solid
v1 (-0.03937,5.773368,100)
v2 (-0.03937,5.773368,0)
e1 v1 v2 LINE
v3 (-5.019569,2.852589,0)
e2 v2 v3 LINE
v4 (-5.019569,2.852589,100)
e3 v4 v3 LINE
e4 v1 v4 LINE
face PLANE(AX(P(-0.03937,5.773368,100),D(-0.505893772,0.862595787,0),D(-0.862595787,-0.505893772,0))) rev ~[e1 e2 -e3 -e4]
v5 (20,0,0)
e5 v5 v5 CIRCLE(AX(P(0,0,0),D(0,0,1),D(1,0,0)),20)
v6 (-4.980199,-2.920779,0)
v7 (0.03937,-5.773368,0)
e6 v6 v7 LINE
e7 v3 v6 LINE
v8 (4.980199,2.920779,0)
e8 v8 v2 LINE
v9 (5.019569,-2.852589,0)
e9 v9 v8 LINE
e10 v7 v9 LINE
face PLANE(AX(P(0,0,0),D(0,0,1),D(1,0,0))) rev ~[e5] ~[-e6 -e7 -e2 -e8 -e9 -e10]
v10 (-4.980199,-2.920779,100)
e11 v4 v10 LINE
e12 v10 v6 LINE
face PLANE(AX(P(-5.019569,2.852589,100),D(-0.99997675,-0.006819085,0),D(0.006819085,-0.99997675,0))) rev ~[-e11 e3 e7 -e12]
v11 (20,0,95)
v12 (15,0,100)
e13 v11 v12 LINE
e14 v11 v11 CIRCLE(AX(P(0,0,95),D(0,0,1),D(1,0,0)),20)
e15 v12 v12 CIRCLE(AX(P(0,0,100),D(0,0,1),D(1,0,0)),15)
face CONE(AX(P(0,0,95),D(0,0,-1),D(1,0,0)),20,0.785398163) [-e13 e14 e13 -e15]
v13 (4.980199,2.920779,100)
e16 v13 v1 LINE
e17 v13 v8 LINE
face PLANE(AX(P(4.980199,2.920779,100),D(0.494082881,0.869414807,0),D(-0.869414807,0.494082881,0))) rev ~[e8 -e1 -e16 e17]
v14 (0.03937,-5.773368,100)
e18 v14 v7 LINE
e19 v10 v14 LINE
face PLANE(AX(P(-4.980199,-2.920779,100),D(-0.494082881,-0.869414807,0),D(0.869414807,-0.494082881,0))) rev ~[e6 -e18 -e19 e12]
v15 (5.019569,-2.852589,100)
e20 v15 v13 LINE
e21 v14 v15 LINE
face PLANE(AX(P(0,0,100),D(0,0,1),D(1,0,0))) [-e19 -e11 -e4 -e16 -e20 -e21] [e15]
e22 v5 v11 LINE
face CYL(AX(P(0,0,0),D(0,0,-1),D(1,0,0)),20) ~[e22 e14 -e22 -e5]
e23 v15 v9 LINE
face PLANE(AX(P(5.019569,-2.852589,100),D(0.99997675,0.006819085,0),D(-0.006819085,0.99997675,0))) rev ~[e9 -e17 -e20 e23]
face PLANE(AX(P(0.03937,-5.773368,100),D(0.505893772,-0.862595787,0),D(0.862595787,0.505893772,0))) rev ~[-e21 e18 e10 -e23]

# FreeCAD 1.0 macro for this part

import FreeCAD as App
import Part
import Sketcher

V = App.Vector


def edges_at(feature, points):
    """Names of the edges that pass closest to the given points."""
    edges = feature.Shape.Edges
    near = lambda p: min(range(len(edges)), key=lambda i: edges[i].distToShape(Part.Vertex(*p))[0])
    return sorted({f"Edge{near(p) + 1}" for p in points})

doc = App.newDocument("Part")
body = doc.addObject("PartDesign::Body", "Body")

# Sketch on XY plane
sketch1 = body.newObject("Sketcher::SketchObject", "Sketch")
sketch1.AttachmentSupport = (doc.getObject("XY_Plane"), [""])
sketch1.MapMode = "FlatFace"
sketch1.addGeometry(Part.Circle(V(0, 0, 0), V(0, 0, 1), 20), False)
sketch1.addConstraint(Sketcher.Constraint("Coincident", 0, 3, -1, 1))
sketch1.addConstraint(Sketcher.Constraint("Diameter", 0, 40.0))
pad1 = body.newObject("PartDesign::Pad", "Pad")
pad1.Profile = sketch1
pad1.Length = 100
doc.recompute()

chamfer = body.newObject("PartDesign::Chamfer", "Chamfer")
chamfer.Base = (pad1, edges_at(pad1, [(-20, 0, 100)]))
chamfer.Size = 5

# Sketch on XY plane
sketch2 = body.newObject("Sketcher::SketchObject", "Sketch001")
sketch2.AttachmentSupport = (doc.getObject("XY_Plane"), [""])
sketch2.MapMode = "FlatFace"
sketch2.AttachmentOffset = App.Placement(V(0, 0, 100), App.Rotation())
sketch2.addGeometry(Part.LineSegment(V(0, -6, 0), V(5, -3, 0)), False)
sketch2.addGeometry(Part.LineSegment(V(5, -3, 0), V(5, 3, 0)), False)
sketch2.addGeometry(Part.LineSegment(V(5, 3, 0), V(0, 6, 0)), False)
sketch2.addGeometry(Part.LineSegment(V(0, 6, 0), V(-5, 3, 0)), False)
sketch2.addGeometry(Part.LineSegment(V(-5, 3, 0), V(-5, -3, 0)), False)
sketch2.addGeometry(Part.LineSegment(V(-5, -3, 0), V(0, -6, 0)), False)
sketch2.addConstraint(Sketcher.Constraint("Coincident", 0, 2, 1, 1))
sketch2.addConstraint(Sketcher.Constraint("Coincident", 1, 2, 2, 1))
sketch2.addConstraint(Sketcher.Constraint("Coincident", 2, 2, 3, 1))
sketch2.addConstraint(Sketcher.Constraint("Coincident", 3, 2, 4, 1))
sketch2.addConstraint(Sketcher.Constraint("Coincident", 4, 2, 5, 1))
sketch2.addConstraint(Sketcher.Constraint("Coincident", 5, 2, 0, 1))
sketch2.addConstraint(Sketcher.Constraint("Symmetric", 0, 2, 3, 2, -1, 1))
sketch2.addConstraint(Sketcher.Constraint("Symmetric", 1, 2, 4, 2, -1, 1))
sketch2.addConstraint(Sketcher.Constraint("Symmetric", 2, 2, 5, 2, -1, 1))
sketch2.addConstraint(Sketcher.Constraint("Equal", 0, 1))
sketch2.addConstraint(Sketcher.Constraint("Equal", 1, 2))
sketch2.addConstraint(Sketcher.Constraint("DistanceX", -1, 1, 1, 2, 4.980199))
sketch2.addConstraint(Sketcher.Constraint("DistanceX", 3, 2, 2, 2, 4.980199))
sketch2.addConstraint(Sketcher.Constraint("DistanceX", -1, 1, 0, 2, 5.019569))
sketch2.addConstraint(Sketcher.Constraint("DistanceY", 0, 2, -1, 1, 2.852589))
pocket1 = body.newObject("PartDesign::Pocket", "Pocket")
pocket1.Profile = sketch2
pocket1.Type = "ThroughAll"

doc.recompute()
